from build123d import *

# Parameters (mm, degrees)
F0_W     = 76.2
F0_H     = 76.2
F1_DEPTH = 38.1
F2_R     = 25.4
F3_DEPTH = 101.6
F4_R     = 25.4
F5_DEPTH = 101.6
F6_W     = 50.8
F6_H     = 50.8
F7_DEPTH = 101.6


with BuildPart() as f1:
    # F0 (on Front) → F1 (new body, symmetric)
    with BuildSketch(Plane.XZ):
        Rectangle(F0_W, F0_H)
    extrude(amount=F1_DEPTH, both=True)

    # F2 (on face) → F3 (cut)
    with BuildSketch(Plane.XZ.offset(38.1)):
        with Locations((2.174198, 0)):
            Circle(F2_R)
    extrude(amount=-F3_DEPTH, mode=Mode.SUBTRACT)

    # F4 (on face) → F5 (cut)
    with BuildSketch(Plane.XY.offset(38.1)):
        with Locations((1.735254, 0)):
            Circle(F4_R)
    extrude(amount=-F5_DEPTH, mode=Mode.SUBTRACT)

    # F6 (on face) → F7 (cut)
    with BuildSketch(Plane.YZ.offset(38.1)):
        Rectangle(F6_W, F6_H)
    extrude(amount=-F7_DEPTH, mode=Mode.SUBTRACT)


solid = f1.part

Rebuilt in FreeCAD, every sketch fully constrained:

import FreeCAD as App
import Part
import Sketcher
from FreeCAD import Vector
Q = App.Units.Quantity

doc = App.newDocument("Part")
body = doc.addObject("PartDesign::Body", "Body")

# Sketch on XZ plane
sketch1 = body.newObject("Sketcher::SketchObject", "Sketch")
sketch1.AttachmentSupport = (doc.getObject("XZ_Plane"), [""])
sketch1.MapMode = "FlatFace"
sketch1.addGeometry(Part.LineSegment(Vector(-38.1, 38.1, 0), Vector(-38.1, -38.1, 0)), False)
sketch1.addGeometry(Part.LineSegment(Vector(-38.1, -38.1, 0), Vector(38.1, -38.1, 0)), False)
sketch1.addGeometry(Part.LineSegment(Vector(38.1, -38.1, 0), Vector(38.1, 38.1, 0)), False)
sketch1.addGeometry(Part.LineSegment(Vector(38.1, 38.1, 0), Vector(-38.1, 38.1, 0)), False)
sketch1.addConstraint(Sketcher.Constraint("Coincident", 0, 2, 1, 1))
sketch1.addConstraint(Sketcher.Constraint("Coincident", 1, 2, 2, 1))
sketch1.addConstraint(Sketcher.Constraint("Coincident", 2, 2, 3, 1))
sketch1.addConstraint(Sketcher.Constraint("Coincident", 3, 2, 0, 1))
sketch1.addConstraint(Sketcher.Constraint("Vertical", 0))
sketch1.addConstraint(Sketcher.Constraint("Horizontal", 1))
sketch1.addConstraint(Sketcher.Constraint("Vertical", 2))
sketch1.addConstraint(Sketcher.Constraint("Horizontal", 3))
sketch1.addConstraint(Sketcher.Constraint("Symmetric", 0, 2, 2, 2, -1, 1))
sketch1.addConstraint(Sketcher.Constraint("Equal", 3, 0))
sketch1.addConstraint(Sketcher.Constraint("DistanceX", 1, 1, 1, 2, Q("3 in")))
pad1 = body.newObject("PartDesign::Pad", "Pad")
pad1.Profile = sketch1
pad1.Length = Q("3 in")
pad1.Midplane = True

# Sketch on XZ plane
sketch2 = body.newObject("Sketcher::SketchObject", "Sketch001")
sketch2.AttachmentSupport = (doc.getObject("XZ_Plane"), [""])
sketch2.MapMode = "FlatFace"
sketch2.AttachmentOffset = App.Placement(Vector(0, 0, 1.5 * 25.4), App.Rotation())
sketch2.addGeometry(Part.Circle(Vector(2.174198, 0, 0), Vector(0, 0, 1), 25.4), False)
sketch2.addConstraint(Sketcher.Constraint("PointOnObject", 0, 3, -1))
sketch2.addConstraint(Sketcher.Constraint("Diameter", 0, Q("2 in")))
sketch2.addConstraint(Sketcher.Constraint("DistanceX", -1, 1, 0, 3, 2.174198))
pocket1 = body.newObject("PartDesign::Pocket", "Pocket")
pocket1.Profile = sketch2
pocket1.Length = Q("4 in")

# Sketch on XY plane
sketch3 = body.newObject("Sketcher::SketchObject", "Sketch002")
sketch3.AttachmentSupport = (doc.getObject("XY_Plane"), [""])
sketch3.MapMode = "FlatFace"
sketch3.AttachmentOffset = App.Placement(Vector(0, 0, 1.5 * 25.4), App.Rotation())
sketch3.addGeometry(Part.Circle(Vector(1.735254, 0, 0), Vector(0, 0, 1), 25.4), False)
sketch3.addConstraint(Sketcher.Constraint("PointOnObject", 0, 3, -1))
sketch3.addConstraint(Sketcher.Constraint("Diameter", 0, Q("2 in")))
sketch3.addConstraint(Sketcher.Constraint("DistanceX", -1, 1, 0, 3, 1.735254))
pocket2 = body.newObject("PartDesign::Pocket", "Pocket001")
pocket2.Profile = sketch3
pocket2.Length = Q("4 in")

# Sketch on YZ plane
sketch4 = body.newObject("Sketcher::SketchObject", "Sketch003")
sketch4.AttachmentSupport = (doc.getObject("YZ_Plane"), [""])
sketch4.MapMode = "FlatFace"
sketch4.AttachmentOffset = App.Placement(Vector(0, 0, 1.5 * 25.4), App.Rotation())
sketch4.addGeometry(Part.LineSegment(Vector(-25.4, 25.4, 0), Vector(-25.4, -25.4, 0)), False)
sketch4.addGeometry(Part.LineSegment(Vector(-25.4, -25.4, 0), Vector(25.4, -25.4, 0)), False)
sketch4.addGeometry(Part.LineSegment(Vector(25.4, -25.4, 0), Vector(25.4, 25.4, 0)), False)
sketch4.addGeometry(Part.LineSegment(Vector(25.4, 25.4, 0), Vector(-25.4, 25.4, 0)), False)
sketch4.addConstraint(Sketcher.Constraint("Coincident", 0, 2, 1, 1))
sketch4.addConstraint(Sketcher.Constraint("Coincident", 1, 2, 2, 1))
sketch4.addConstraint(Sketcher.Constraint("Coincident", 2, 2, 3, 1))
sketch4.addConstraint(Sketcher.Constraint("Coincident", 3, 2, 0, 1))
sketch4.addConstraint(Sketcher.Constraint("Vertical", 0))
sketch4.addConstraint(Sketcher.Constraint("Horizontal", 1))
sketch4.addConstraint(Sketcher.Constraint("Vertical", 2))
sketch4.addConstraint(Sketcher.Constraint("Horizontal", 3))
sketch4.addConstraint(Sketcher.Constraint("Symmetric", 0, 2, 2, 2, -1, 1))
sketch4.addConstraint(Sketcher.Constraint("Equal", 3, 0))
sketch4.addConstraint(Sketcher.Constraint("DistanceX", 1, 1, 1, 2, Q("2 in")))
pocket3 = body.newObject("PartDesign::Pocket", "Pocket002")
pocket3.Profile = sketch4
pocket3.Length = Q("4 in")

doc.recompute()
